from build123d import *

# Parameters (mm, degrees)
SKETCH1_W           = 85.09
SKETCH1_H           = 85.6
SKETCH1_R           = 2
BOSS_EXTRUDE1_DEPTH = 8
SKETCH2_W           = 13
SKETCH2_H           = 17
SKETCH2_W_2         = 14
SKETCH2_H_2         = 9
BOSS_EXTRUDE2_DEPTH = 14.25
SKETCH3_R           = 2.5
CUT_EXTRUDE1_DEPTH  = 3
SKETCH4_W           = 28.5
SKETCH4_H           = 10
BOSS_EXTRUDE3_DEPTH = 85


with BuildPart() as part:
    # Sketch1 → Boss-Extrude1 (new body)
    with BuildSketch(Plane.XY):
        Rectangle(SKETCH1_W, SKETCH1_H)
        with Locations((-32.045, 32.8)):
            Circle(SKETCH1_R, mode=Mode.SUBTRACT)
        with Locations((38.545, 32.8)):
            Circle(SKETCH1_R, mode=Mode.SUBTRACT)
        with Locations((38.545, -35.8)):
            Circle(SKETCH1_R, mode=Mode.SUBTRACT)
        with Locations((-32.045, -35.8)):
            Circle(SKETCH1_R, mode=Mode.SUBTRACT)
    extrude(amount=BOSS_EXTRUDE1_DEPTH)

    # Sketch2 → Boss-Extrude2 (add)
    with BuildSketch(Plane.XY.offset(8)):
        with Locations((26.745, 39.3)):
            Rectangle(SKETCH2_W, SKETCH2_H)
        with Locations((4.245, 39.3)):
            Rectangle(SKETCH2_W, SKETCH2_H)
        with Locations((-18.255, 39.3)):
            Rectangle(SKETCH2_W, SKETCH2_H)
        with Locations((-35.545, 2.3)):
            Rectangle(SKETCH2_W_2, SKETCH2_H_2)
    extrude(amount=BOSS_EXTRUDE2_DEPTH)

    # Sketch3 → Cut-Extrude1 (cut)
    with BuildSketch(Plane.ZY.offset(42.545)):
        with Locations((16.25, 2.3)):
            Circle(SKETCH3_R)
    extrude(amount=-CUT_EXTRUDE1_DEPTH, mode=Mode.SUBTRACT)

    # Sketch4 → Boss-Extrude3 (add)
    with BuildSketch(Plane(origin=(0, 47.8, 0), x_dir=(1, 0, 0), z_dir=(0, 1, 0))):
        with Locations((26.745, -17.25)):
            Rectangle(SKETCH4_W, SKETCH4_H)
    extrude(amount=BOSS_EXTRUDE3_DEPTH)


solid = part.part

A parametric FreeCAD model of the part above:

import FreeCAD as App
import Part
import Sketcher


def add_polygon(sketch, points):
    """Adds a closed chain of lines whose ends are joined by coincident constraints."""
    first, n = sketch.GeometryCount, len(points)
    for a, b in zip(points, points[1:] + points[:1]):
        sketch.addGeometry(Part.LineSegment(App.Vector(*a, 0), App.Vector(*b, 0)), False)
    for i in range(n):
        sketch.addConstraint(Sketcher.Constraint("Coincident", first + i, 2, first + (i + 1) % n, 1))

doc = App.newDocument("Part")
body = doc.addObject("PartDesign::Body", "Body")

sketch1 = body.newObject("Sketcher::SketchObject", "Sketch")
sketch1.AttachmentSupport = (doc.getObject("XY_Plane"), [""])
sketch1.MapMode = "FlatFace"
add_polygon(sketch1, [(-42.5, 42.8), (-42.5, -42.8), (42.5, -42.8), (42.5, 42.8)])
sketch1.addGeometry(Part.Circle(App.Vector(-32, -35.8, 0), App.Vector(0, 0, 1), 2), False)
sketch1.addGeometry(Part.Circle(App.Vector(38.5, -35.8, 0), App.Vector(0, 0, 1), 2), False)
sketch1.addGeometry(Part.Circle(App.Vector(-32, 32.8, 0), App.Vector(0, 0, 1), 2), False)
sketch1.addGeometry(Part.Circle(App.Vector(38.5, 32.8, 0), App.Vector(0, 0, 1), 2), False)
sketch1.addConstraint([
    Sketcher.Constraint("Vertical", 0),
    Sketcher.Constraint("Horizontal", 1),
    Sketcher.Constraint("Vertical", 2),
    Sketcher.Constraint("Horizontal", 3),
    Sketcher.Constraint("Equal", 4, 5),
    Sketcher.Constraint("Equal", 5, 6),
    Sketcher.Constraint("Equal", 6, 7),
    Sketcher.Constraint("Symmetric", 0, 2, 2, 2, -1, 1),
    Sketcher.Constraint("Horizontal", 4, 3, 5, 3),
    Sketcher.Constraint("Horizontal", 6, 3, 7, 3),
    Sketcher.Constraint("Vertical", 4, 3, 6, 3),
    Sketcher.Constraint("Vertical", 5, 3, 7, 3),
    Sketcher.Constraint("Diameter", 4, 4.0),
    Sketcher.Constraint("DistanceY", 0, 2, 0, 1, 85.6),
    Sketcher.Constraint("DistanceY", 0, 2, 4, 3, 7.0),
    Sketcher.Constraint("DistanceX", 5, 3, 1, 2, 4.0),
    Sketcher.Constraint("DistanceY", 7, 3, 2, 2, 10.0),
    Sketcher.Constraint("DistanceX", 1, 1, 1, 2, 85.09),
    Sketcher.Constraint("DistanceX", 0, 2, 4, 3, 10.5),
])
pad1 = body.newObject("PartDesign::Pad", "Pad")
pad1.Profile = sketch1
pad1.Length = 8

sketch2 = body.newObject("Sketcher::SketchObject", "Sketch001")
sketch2.AttachmentSupport = (doc.getObject("XY_Plane"), [""])
sketch2.MapMode = "FlatFace"
sketch2.AttachmentOffset = App.Placement(App.Vector(0, 0, 8), App.Rotation())
add_polygon(sketch2, [(20, 48), (20, 31), (33, 31), (33, 48)])
add_polygon(sketch2, [(-2, 48), (-2, 31), (11, 31), (11, 48)])
add_polygon(sketch2, [(-25, 48), (-25, 31), (-12, 31), (-12, 48)])
add_polygon(sketch2, [(-43, 7), (-43, -2), (-29, -2), (-29, 7)])
sketch2.addConstraint([
    Sketcher.Constraint("Vertical", 0),
    Sketcher.Constraint("Horizontal", 1),
    Sketcher.Constraint("Vertical", 2),
    Sketcher.Constraint("Horizontal", 3),
    Sketcher.Constraint("Vertical", 4),
    Sketcher.Constraint("Horizontal", 5),
    Sketcher.Constraint("Vertical", 6),
    Sketcher.Constraint("Horizontal", 7),
    Sketcher.Constraint("Vertical", 8),
    Sketcher.Constraint("Horizontal", 9),
    Sketcher.Constraint("Vertical", 10),
    Sketcher.Constraint("Horizontal", 11),
    Sketcher.Constraint("Vertical", 12),
    Sketcher.Constraint("Horizontal", 13),
    Sketcher.Constraint("Vertical", 14),
    Sketcher.Constraint("Horizontal", 15),
    Sketcher.Constraint("Horizontal", 1, 2, 4, 2),
    Sketcher.Constraint("Horizontal", 3, 2, 6, 2),
    Sketcher.Constraint("Horizontal", 5, 2, 8, 2),
    Sketcher.Constraint("Horizontal", 7, 2, 10, 2),
    Sketcher.Constraint("Equal", 3, 5),
    Sketcher.Constraint("Equal", 7, 9),
    Sketcher.Constraint("DistanceX", 1, 1, 1, 2, 13.0),
    Sketcher.Constraint("DistanceX", 13, 1, 13, 2, 14.0),
    Sketcher.Constraint("DistanceY", 0, 2, 0, 1, 17.0),
    Sketcher.Constraint("DistanceY", 12, 2, 12, 1, 9.0),
    Sketcher.Constraint("DistanceX", 8, 2, 0, 2, 45.0),
    Sketcher.Constraint("DistanceY", 12, 2, 8, 2, 33.0),
    Sketcher.Constraint("DistanceY", -1, 1, 0, 2, 30.8),
    Sketcher.Constraint("DistanceX", 4, 2, 0, 2, 22.5),
    Sketcher.Constraint("DistanceX", 12, 2, 8, 2, 17.79),
    Sketcher.Constraint("DistanceX", -1, 1, 0, 2, 20.245),
])
pad2 = body.newObject("PartDesign::Pad", "Pad001")
pad2.Profile = sketch2
pad2.Length = 14.25

sketch3 = body.newObject("Sketcher::SketchObject", "Sketch002")
sketch3.AttachmentSupport = (doc.getObject("YZ_Plane"), [""])
sketch3.MapMode = "FlatFace"
sketch3.AttachmentOffset = App.Placement(App.Vector(0, 0, -42.545), App.Rotation())
sketch3.addGeometry(Part.Circle(App.Vector(2.3, 16.2, 0), App.Vector(0, 0, 1), 2.5), False)
sketch3.addConstraint([
    Sketcher.Constraint("Diameter", 0, 5.0),
    Sketcher.Constraint("DistanceX", -1, 1, 0, 3, 2.3),
    Sketcher.Constraint("DistanceY", -1, 1, 0, 3, 16.25),
])
pocket1 = body.newObject("PartDesign::Pocket", "Pocket")
pocket1.Profile = sketch3
pocket1.Length = 3
pocket1.Reversed = True

sketch4 = body.newObject("Sketcher::SketchObject", "Sketch003")
sketch4.AttachmentSupport = (doc.getObject("XZ_Plane"), [""])
sketch4.MapMode = "FlatFace"
sketch4.AttachmentOffset = App.Placement(App.Vector(0, 0, -47.8), App.Rotation())
add_polygon(sketch4, [(12, 12), (12, 22), (41, 22), (41, 12)])
sketch4.addConstraint([
    Sketcher.Constraint("Vertical", 0),
    Sketcher.Constraint("Horizontal", 1),
    Sketcher.Constraint("Vertical", 2),
    Sketcher.Constraint("Horizontal", 3),
    Sketcher.Constraint("DistanceY", 0, 1, 0, 2, 10.0),
    Sketcher.Constraint("DistanceX", 1, 1, 1, 2, 28.5),
    Sketcher.Constraint("DistanceY", -1, 1, 0, 2, 22.25),
    Sketcher.Constraint("DistanceX", -1, 1, 0, 2, 12.495),
])
pad3 = body.newObject("PartDesign::Pad", "Pad002")
pad3.Profile = sketch4
pad3.Length = 85
pad3.Reversed = True

doc.recompute()
